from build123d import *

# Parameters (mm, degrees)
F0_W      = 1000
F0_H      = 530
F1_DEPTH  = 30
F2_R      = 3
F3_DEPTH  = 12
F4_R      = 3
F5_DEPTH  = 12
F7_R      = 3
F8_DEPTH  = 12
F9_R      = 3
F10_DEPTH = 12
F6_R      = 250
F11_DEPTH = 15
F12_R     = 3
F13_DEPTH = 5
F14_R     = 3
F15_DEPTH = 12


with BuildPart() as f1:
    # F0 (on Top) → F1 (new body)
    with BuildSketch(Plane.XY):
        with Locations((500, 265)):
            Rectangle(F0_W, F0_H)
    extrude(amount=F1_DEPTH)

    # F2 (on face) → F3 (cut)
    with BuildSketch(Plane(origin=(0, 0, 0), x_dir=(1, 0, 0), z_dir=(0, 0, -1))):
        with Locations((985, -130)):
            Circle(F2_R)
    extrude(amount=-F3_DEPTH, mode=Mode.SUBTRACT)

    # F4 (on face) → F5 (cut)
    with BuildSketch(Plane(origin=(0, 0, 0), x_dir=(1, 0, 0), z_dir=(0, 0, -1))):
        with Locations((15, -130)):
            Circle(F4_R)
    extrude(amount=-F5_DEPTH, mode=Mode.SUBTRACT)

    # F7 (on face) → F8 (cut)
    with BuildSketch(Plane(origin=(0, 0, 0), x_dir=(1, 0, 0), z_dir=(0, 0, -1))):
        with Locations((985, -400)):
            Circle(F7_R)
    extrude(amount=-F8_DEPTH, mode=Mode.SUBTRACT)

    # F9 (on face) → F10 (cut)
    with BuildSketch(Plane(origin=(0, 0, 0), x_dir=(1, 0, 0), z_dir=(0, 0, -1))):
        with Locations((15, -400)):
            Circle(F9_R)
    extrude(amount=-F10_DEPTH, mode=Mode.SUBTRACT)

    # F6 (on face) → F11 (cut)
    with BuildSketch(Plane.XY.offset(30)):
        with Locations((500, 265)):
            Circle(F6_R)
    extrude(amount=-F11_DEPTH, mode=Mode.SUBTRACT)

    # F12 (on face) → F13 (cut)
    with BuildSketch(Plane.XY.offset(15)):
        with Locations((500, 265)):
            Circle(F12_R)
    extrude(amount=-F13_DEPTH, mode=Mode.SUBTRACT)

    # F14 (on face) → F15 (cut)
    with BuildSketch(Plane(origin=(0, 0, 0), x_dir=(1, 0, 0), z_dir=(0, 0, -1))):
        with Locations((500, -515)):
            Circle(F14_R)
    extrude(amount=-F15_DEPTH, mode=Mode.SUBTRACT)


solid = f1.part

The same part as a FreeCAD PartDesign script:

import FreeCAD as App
import Part
import Sketcher
from FreeCAD import Vector
Q = App.Units.Quantity

doc = App.newDocument("Part")
body = doc.addObject("PartDesign::Body", "Body")

# Sketch on XY plane
sketch1 = doc.addObject("Sketcher::SketchObject", "Sketch")
body.addObject(sketch1)
sketch1.AttachmentSupport = (doc.XY_Plane, [""])
sketch1.MapMode = "FlatFace"
sketch1.addGeometry(Part.LineSegment(Vector(0, 530, 0), Vector(0, 0, 0)), False)
sketch1.addGeometry(Part.LineSegment(Vector(0, 0, 0), Vector(1000, 0, 0)), False)
sketch1.addGeometry(Part.LineSegment(Vector(1000, 0, 0), Vector(1000, 530, 0)), False)
sketch1.addGeometry(Part.LineSegment(Vector(1000, 530, 0), Vector(0, 530, 0)), False)
sketch1.addConstraint(Sketcher.Constraint("Coincident", 0, 2, 1, 1))
sketch1.addConstraint(Sketcher.Constraint("Coincident", 1, 2, 2, 1))
sketch1.addConstraint(Sketcher.Constraint("Coincident", 2, 2, 3, 1))
sketch1.addConstraint(Sketcher.Constraint("Coincident", 3, 2, 0, 1))
sketch1.addConstraint(Sketcher.Constraint("Vertical", 0))
sketch1.addConstraint(Sketcher.Constraint("Horizontal", 1))
sketch1.addConstraint(Sketcher.Constraint("Vertical", 2))
sketch1.addConstraint(Sketcher.Constraint("Horizontal", 3))
sketch1.addConstraint(Sketcher.Constraint("Coincident", 0, 2, -1, 1))
sketch1.addConstraint(Sketcher.Constraint("DistanceX", 1, 1, 1, 2, Q("1000 mm")))
sketch1.addConstraint(Sketcher.Constraint("DistanceY", 0, 2, 0, 1, Q("530 mm")))
pad1 = doc.addObject("PartDesign::Pad", "Pad")
body.addObject(pad1)
pad1.Profile = sketch1
pad1.Length = 30

# Sketch on XY plane
sketch2 = doc.addObject("Sketcher::SketchObject", "Sketch001")
body.addObject(sketch2)
sketch2.AttachmentSupport = (doc.XY_Plane, [""])
sketch2.MapMode = "FlatFace"
sketch2.addGeometry(Part.Circle(Vector(985, 130, 0), Vector(0, 0, 1), 3), False)
sketch2.addConstraint(Sketcher.Constraint("Diameter", 0, Q("6 mm")))
sketch2.addConstraint(Sketcher.Constraint("DistanceX", -1, 1, 0, 3, Q("985 mm")))
sketch2.addConstraint(Sketcher.Constraint("DistanceY", -1, 1, 0, 3, Q("130 mm")))
pocket1 = doc.addObject("PartDesign::Pocket", "Pocket")
body.addObject(pocket1)
pocket1.Profile = sketch2
pocket1.Length = 12
pocket1.Reversed = True

# Sketch on XY plane
sketch3 = doc.addObject("Sketcher::SketchObject", "Sketch002")
body.addObject(sketch3)
sketch3.AttachmentSupport = (doc.XY_Plane, [""])
sketch3.MapMode = "FlatFace"
sketch3.addGeometry(Part.Circle(Vector(15, 130, 0), Vector(0, 0, 1), 3), False)
sketch3.addConstraint(Sketcher.Constraint("Diameter", 0, Q("6 mm")))
sketch3.addConstraint(Sketcher.Constraint("DistanceX", -1, 1, 0, 3, Q("15 mm")))
sketch3.addConstraint(Sketcher.Constraint("DistanceY", -1, 1, 0, 3, Q("130 mm")))
pocket2 = doc.addObject("PartDesign::Pocket", "Pocket001")
body.addObject(pocket2)
pocket2.Profile = sketch3
pocket2.Length = 12
pocket2.Reversed = True

# Sketch on XY plane
sketch4 = doc.addObject("Sketcher::SketchObject", "Sketch003")
body.addObject(sketch4)
sketch4.AttachmentSupport = (doc.XY_Plane, [""])
sketch4.MapMode = "FlatFace"
sketch4.addGeometry(Part.Circle(Vector(985, 400, 0), Vector(0, 0, 1), 3), False)
sketch4.addConstraint(Sketcher.Constraint("Diameter", 0, Q("6 mm")))
sketch4.addConstraint(Sketcher.Constraint("DistanceX", -1, 1, 0, 3, Q("985 mm")))
sketch4.addConstraint(Sketcher.Constraint("DistanceY", -1, 1, 0, 3, Q("400 mm")))
pocket3 = doc.addObject("PartDesign::Pocket", "Pocket002")
body.addObject(pocket3)
pocket3.Profile = sketch4
pocket3.Length = 12
pocket3.Reversed = True

# Sketch on XY plane
sketch5 = doc.addObject("Sketcher::SketchObject", "Sketch004")
body.addObject(sketch5)
sketch5.AttachmentSupport = (doc.XY_Plane, [""])
sketch5.MapMode = "FlatFace"
sketch5.addGeometry(Part.Circle(Vector(15, 400, 0), Vector(0, 0, 1), 3), False)
sketch5.addConstraint(Sketcher.Constraint("Diameter", 0, Q("6 mm")))
sketch5.addConstraint(Sketcher.Constraint("DistanceX", -1, 1, 0, 3, Q("15 mm")))
sketch5.addConstraint(Sketcher.Constraint("DistanceY", -1, 1, 0, 3, Q("400 mm")))
pocket4 = doc.addObject("PartDesign::Pocket", "Pocket003")
body.addObject(pocket4)
pocket4.Profile = sketch5
pocket4.Length = 12
pocket4.Reversed = True

# Sketch on XY plane
sketch6 = doc.addObject("Sketcher::SketchObject", "Sketch005")
body.addObject(sketch6)
sketch6.AttachmentSupport = (doc.XY_Plane, [""])
sketch6.MapMode = "FlatFace"
sketch6.AttachmentOffset = App.Placement(Vector(0, 0, 30), App.Rotation())
sketch6.addGeometry(Part.Circle(Vector(500, 265, 0), Vector(0, 0, 1), 250), False)
sketch6.addConstraint(Sketcher.Constraint("Diameter", 0, Q("500 mm")))
sketch6.addConstraint(Sketcher.Constraint("DistanceX", -1, 1, 0, 3, Q("500 mm")))
sketch6.addConstraint(Sketcher.Constraint("DistanceY", -1, 1, 0, 3, Q("265 mm")))
pocket5 = doc.addObject("PartDesign::Pocket", "Pocket004")
body.addObject(pocket5)
pocket5.Profile = sketch6
pocket5.Length = 15

# Sketch on XY plane
sketch7 = doc.addObject("Sketcher::SketchObject", "Sketch006")
body.addObject(sketch7)
sketch7.AttachmentSupport = (doc.XY_Plane, [""])
sketch7.MapMode = "FlatFace"
sketch7.AttachmentOffset = App.Placement(Vector(0, 0, 15), App.Rotation())
sketch7.addGeometry(Part.Circle(Vector(500, 265, 0), Vector(0, 0, 1), 3), False)
sketch7.addConstraint(Sketcher.Constraint("Diameter", 0, Q("6 mm")))
sketch7.addConstraint(Sketcher.Constraint("DistanceX", -1, 1, 0, 3, Q("500 mm")))
sketch7.addConstraint(Sketcher.Constraint("DistanceY", -1, 1, 0, 3, Q("265 mm")))
pocket6 = doc.addObject("PartDesign::Pocket", "Pocket005")
body.addObject(pocket6)
pocket6.Profile = sketch7
pocket6.Length = 5

# Sketch on XY plane
sketch8 = doc.addObject("Sketcher::SketchObject", "Sketch007")
body.addObject(sketch8)
sketch8.AttachmentSupport = (doc.XY_Plane, [""])
sketch8.MapMode = "FlatFace"
sketch8.addGeometry(Part.Circle(Vector(500, 515, 0), Vector(0, 0, 1), 3), False)
sketch8.addConstraint(Sketcher.Constraint("Diameter", 0, Q("6 mm")))
sketch8.addConstraint(Sketcher.Constraint("DistanceX", -1, 1, 0, 3, Q("500 mm")))
sketch8.addConstraint(Sketcher.Constraint("DistanceY", -1, 1, 0, 3, Q("515 mm")))
pocket7 = doc.addObject("PartDesign::Pocket", "Pocket006")
body.addObject(pocket7)
pocket7.Profile = sketch8
pocket7.Length = 12
pocket7.Reversed = True

doc.recompute()
